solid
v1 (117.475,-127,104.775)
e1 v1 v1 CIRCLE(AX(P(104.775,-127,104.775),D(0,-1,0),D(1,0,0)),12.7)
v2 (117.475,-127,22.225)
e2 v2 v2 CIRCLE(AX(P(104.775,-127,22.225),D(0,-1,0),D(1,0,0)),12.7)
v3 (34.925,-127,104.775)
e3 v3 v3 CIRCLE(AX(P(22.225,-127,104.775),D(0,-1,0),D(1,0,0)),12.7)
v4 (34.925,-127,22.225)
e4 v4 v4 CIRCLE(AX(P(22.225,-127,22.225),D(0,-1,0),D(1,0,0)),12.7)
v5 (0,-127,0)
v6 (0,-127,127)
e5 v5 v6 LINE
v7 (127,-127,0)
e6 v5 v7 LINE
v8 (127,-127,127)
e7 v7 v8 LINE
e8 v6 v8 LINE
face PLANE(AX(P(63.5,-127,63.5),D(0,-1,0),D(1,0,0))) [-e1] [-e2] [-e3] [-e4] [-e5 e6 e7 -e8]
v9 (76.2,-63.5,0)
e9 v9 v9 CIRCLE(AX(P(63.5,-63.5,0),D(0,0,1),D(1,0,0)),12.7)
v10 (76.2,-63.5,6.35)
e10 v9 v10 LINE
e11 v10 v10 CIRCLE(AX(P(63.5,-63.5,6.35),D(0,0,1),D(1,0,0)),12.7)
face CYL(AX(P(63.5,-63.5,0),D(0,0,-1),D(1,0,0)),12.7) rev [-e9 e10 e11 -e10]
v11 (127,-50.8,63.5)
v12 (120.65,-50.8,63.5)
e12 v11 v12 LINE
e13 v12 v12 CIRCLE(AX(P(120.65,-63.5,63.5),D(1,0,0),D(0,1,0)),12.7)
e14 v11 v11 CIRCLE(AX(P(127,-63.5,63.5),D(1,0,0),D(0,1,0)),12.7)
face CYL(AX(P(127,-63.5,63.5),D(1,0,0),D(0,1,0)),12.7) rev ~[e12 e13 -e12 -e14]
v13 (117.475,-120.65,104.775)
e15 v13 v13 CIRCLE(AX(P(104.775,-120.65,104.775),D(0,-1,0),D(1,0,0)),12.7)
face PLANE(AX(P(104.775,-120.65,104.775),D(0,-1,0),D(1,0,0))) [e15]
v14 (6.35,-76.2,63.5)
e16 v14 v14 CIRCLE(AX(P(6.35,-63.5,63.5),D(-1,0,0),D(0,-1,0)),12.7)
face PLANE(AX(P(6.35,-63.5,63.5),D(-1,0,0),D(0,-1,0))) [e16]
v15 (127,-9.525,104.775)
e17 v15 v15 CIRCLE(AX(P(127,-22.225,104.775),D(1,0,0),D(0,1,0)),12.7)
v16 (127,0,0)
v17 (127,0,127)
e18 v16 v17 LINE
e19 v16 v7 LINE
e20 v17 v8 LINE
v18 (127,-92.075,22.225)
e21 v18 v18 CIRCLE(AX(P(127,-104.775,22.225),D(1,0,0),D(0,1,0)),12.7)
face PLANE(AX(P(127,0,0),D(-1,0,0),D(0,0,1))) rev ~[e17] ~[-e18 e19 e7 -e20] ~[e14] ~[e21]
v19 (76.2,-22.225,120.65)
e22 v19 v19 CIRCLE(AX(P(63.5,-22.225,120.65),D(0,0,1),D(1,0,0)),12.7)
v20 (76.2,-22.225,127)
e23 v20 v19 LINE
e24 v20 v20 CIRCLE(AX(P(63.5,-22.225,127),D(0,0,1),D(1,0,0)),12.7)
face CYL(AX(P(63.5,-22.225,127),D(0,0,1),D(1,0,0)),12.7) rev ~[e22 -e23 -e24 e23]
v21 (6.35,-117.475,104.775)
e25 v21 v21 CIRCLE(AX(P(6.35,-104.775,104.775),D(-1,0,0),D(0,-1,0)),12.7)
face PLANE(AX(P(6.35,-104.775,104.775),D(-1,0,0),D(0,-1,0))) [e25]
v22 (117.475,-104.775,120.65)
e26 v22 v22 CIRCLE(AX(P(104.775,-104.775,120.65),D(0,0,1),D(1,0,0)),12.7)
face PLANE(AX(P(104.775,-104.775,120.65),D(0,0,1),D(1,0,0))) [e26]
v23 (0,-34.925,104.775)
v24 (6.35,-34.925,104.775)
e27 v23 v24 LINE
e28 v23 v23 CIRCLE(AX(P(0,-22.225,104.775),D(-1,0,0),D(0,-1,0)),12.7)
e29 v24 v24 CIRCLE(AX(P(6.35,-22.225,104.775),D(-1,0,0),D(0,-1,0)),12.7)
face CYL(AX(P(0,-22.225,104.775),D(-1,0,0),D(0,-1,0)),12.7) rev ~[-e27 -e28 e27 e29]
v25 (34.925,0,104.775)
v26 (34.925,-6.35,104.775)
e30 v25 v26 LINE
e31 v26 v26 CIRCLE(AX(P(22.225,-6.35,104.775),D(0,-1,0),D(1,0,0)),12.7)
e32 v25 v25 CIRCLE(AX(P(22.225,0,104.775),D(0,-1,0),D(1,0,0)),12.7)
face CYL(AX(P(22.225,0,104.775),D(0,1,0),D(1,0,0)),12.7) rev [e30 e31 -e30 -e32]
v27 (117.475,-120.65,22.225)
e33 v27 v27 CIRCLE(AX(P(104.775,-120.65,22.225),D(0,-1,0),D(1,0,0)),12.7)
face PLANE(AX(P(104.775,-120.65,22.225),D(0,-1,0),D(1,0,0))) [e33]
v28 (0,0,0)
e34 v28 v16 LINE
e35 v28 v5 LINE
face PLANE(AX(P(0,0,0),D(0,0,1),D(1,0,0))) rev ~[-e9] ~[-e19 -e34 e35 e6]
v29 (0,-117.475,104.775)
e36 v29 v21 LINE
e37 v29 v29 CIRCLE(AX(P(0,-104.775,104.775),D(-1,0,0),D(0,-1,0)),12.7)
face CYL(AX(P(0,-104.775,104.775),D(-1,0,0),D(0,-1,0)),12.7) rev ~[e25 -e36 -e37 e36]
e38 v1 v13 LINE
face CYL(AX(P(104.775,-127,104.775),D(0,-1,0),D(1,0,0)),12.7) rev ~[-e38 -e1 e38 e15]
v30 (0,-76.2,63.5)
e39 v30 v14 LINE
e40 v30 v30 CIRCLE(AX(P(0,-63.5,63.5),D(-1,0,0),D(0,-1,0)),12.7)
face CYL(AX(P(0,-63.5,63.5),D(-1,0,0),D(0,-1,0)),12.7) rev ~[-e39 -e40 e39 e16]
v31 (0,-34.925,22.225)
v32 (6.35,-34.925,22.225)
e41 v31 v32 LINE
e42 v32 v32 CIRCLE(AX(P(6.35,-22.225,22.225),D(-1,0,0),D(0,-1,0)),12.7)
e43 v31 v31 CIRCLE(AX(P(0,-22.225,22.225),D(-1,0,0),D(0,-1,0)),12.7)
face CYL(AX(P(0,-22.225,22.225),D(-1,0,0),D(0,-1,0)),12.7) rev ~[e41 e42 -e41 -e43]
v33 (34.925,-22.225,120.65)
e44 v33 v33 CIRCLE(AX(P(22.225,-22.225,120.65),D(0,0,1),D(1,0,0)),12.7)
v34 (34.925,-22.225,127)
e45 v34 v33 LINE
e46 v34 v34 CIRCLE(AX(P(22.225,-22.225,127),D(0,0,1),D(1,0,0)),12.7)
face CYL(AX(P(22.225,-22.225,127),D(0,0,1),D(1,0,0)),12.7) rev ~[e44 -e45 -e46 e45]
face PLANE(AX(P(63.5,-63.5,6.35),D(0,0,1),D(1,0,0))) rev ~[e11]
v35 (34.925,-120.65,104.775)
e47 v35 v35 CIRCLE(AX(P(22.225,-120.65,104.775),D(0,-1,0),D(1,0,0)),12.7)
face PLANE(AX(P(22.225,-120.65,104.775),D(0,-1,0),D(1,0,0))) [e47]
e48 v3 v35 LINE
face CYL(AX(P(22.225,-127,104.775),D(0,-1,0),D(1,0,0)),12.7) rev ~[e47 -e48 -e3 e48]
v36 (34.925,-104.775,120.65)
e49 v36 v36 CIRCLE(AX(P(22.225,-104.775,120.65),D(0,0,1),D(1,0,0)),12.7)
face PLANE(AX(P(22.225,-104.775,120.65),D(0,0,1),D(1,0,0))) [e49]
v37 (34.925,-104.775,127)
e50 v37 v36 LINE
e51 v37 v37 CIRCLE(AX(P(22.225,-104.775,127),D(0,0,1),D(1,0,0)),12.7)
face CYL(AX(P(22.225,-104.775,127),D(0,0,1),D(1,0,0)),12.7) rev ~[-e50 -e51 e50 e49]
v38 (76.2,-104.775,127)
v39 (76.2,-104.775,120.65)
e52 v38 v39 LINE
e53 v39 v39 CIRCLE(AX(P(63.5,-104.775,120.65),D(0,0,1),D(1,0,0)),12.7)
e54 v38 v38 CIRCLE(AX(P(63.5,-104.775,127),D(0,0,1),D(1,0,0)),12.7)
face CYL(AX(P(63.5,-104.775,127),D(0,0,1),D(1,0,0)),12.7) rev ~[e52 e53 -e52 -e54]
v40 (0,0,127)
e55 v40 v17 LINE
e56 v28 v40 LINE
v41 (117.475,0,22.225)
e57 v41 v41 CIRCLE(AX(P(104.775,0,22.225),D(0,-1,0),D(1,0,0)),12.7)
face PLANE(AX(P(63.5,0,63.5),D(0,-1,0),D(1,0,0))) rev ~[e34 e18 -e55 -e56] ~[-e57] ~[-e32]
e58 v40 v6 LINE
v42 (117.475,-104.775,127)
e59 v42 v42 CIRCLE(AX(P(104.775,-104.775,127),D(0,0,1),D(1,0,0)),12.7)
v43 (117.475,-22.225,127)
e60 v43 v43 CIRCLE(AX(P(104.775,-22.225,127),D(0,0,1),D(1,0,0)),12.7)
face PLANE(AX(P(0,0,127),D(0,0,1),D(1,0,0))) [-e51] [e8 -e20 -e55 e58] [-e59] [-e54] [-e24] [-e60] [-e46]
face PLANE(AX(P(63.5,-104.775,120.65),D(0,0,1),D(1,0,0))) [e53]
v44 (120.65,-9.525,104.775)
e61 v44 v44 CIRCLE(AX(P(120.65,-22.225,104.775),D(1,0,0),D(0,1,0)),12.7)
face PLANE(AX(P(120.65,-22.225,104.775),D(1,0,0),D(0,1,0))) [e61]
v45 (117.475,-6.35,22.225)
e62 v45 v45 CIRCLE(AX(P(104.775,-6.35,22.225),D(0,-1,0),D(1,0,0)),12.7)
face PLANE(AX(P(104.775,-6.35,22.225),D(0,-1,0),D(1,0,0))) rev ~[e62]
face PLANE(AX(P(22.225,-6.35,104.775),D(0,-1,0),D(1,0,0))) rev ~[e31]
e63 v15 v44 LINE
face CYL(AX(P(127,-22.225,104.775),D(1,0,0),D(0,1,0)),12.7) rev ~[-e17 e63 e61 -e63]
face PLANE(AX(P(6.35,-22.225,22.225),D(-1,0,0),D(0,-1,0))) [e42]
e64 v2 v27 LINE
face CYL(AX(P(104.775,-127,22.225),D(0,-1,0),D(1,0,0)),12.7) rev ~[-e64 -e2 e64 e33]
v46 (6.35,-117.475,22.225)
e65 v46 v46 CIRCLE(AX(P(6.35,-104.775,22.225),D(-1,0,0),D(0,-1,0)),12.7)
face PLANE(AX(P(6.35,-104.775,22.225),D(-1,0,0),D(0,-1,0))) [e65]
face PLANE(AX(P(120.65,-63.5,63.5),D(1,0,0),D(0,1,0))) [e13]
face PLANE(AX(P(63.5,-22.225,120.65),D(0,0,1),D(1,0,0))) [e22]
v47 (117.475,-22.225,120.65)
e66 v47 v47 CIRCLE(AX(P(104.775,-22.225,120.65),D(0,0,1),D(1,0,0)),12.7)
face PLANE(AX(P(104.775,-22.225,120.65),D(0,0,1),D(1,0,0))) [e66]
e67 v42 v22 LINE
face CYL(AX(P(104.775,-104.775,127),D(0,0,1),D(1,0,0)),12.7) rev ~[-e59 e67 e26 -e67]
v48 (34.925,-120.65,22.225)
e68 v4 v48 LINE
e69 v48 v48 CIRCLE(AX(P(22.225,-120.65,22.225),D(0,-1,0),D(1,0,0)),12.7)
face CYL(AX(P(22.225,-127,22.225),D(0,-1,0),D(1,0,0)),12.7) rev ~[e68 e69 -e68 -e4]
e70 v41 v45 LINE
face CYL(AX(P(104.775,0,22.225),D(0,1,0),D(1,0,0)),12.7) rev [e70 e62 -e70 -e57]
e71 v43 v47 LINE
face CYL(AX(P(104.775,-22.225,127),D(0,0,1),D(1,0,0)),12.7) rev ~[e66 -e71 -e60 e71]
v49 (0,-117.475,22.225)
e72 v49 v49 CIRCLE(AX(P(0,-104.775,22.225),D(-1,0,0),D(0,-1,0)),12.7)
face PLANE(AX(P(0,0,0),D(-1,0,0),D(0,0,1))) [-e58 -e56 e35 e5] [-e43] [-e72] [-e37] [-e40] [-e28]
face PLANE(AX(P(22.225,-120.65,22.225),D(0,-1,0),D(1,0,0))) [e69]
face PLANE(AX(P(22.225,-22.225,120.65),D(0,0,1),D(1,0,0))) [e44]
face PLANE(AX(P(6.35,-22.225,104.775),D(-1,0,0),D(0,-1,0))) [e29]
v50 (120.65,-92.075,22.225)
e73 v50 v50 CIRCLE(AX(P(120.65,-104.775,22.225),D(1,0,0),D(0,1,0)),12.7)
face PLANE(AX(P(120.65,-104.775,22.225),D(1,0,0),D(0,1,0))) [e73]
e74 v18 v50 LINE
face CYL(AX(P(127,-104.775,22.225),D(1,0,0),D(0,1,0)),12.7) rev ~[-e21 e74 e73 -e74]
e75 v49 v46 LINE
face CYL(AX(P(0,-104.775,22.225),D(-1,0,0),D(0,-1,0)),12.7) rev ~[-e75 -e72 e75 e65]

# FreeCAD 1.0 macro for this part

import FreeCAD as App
import Part
import Sketcher
Q = App.Units.Quantity


def add_polygon(sketch, points):
    """Adds a closed chain of lines whose ends are joined by coincident constraints."""
    first, n = sketch.GeometryCount, len(points)
    for a, b in zip(points, points[1:] + points[:1]):
        sketch.addGeometry(Part.LineSegment(App.Vector(*a, 0), App.Vector(*b, 0)), False)
    for i in range(n):
        sketch.addConstraint(Sketcher.Constraint("Coincident", first + i, 2, first + (i + 1) % n, 1))

doc = App.newDocument("Part")
params = doc.addObject("Spreadsheet::Sheet", "Params")
for row, (alias, value) in enumerate([
    ("sketch1_width", "5 in"),
    ("pad1_length", "5 in"),
    ("sketch2_diameter", "1 in"),
    ("pocket1_length", "0.25 in"),
    ("sketch3_diameter", "1 in"),
    ("pocket2_length", "0.25 in"),
    ("sketch4_diameter", "1 in"),
    ("pocket3_length", "0.25 in"),
    ("sketch5_diameter", "1 in"),
    ("pocket4_length", "0.25 in"),
    ("sketch6_diameter", "1 in"),
    ("pocket5_length", "0.25 in"),
    ("sketch7_diameter", "1 in"),
    ("pocket6_length", "0.25 in"),
], start=1):
    params.set(f"A{row}", alias)
    params.set(f"B{row}", "=" + value)
    params.setAlias(f"B{row}", alias)

body = doc.addObject("PartDesign::Body", "Body")

# Sketch on XZ plane
sketch1 = doc.addObject("Sketcher::SketchObject", "Sketch")
body.addObject(sketch1)
sketch1.AttachmentSupport = (doc.XZ_Plane, [""])
sketch1.MapMode = "FlatFace"
add_polygon(sketch1, [(0, 127), (0, 0), (127, 0), (127, 127)])  # lines 0-3
sketch1.addConstraint([
    Sketcher.Constraint("Vertical", 0),
    Sketcher.Constraint("Horizontal", 1),
    Sketcher.Constraint("Vertical", 2),
    Sketcher.Constraint("Horizontal", 3),
    Sketcher.Constraint("Coincident", 0, 2, -1, 1),
    Sketcher.Constraint("Equal", 3, 0),
    Sketcher.Constraint("DistanceX", 1, 1, 1, 2, Q("5 in")),
])
sketch1.setExpression("Constraints[10]", "Params.sketch1_width")
pad1 = doc.addObject("PartDesign::Pad", "Pad")
body.addObject(pad1)
pad1.Profile = sketch1
pad1.setExpression("Length", "Params.pad1_length")

# Sketch on XY plane
sketch2 = doc.addObject("Sketcher::SketchObject", "Sketch001")
body.addObject(sketch2)
sketch2.AttachmentSupport = (doc.XY_Plane, [""])
sketch2.MapMode = "FlatFace"
sketch2.addGeometry(Part.Circle(App.Vector(64, -64, 0), App.Vector(0, 0, 1), 13), False)
sketch2.addConstraint([
    Sketcher.Constraint("Diameter", 0, Q("1 in")),
    Sketcher.Constraint("DistanceX", -1, 1, 0, 3, Q("2.5 in")),
    Sketcher.Constraint("DistanceY", 0, 3, -1, 1, Q("2.5 in")),
])
sketch2.setExpression("Constraints[0]", "Params.sketch2_diameter")
pocket1 = doc.addObject("PartDesign::Pocket", "Pocket")
body.addObject(pocket1)
pocket1.Profile = sketch2
pocket1.setExpression("Length", "Params.pocket1_length")
pocket1.Reversed = True

# Sketch on XZ plane
sketch3 = doc.addObject("Sketcher::SketchObject", "Sketch002")
body.addObject(sketch3)
sketch3.AttachmentSupport = (doc.XZ_Plane, [""])
sketch3.MapMode = "FlatFace"
sketch3.addGeometry([
    Part.Circle(App.Vector(105, 22, 0), App.Vector(0, 0, 1), 13),
    Part.Circle(App.Vector(22, 105, 0), App.Vector(0, 0, 1), 13),
], False)
sketch3.addConstraint([
    Sketcher.Constraint("Equal", 0, 1),
    Sketcher.Constraint("Diameter", 0, Q("1 in")),
    Sketcher.Constraint("DistanceX", 1, 3, 0, 3, Q("3.25 in")),
    Sketcher.Constraint("DistanceY", 0, 3, 1, 3, Q("3.25 in")),
    Sketcher.Constraint("DistanceX", -1, 1, 0, 3, Q("4.125 in")),
    Sketcher.Constraint("DistanceY", -1, 1, 0, 3, Q("0.875 in")),
])
sketch3.setExpression("Constraints[1]", "Params.sketch3_diameter")
pocket2 = doc.addObject("PartDesign::Pocket", "Pocket001")
body.addObject(pocket2)
pocket2.Profile = sketch3
pocket2.setExpression("Length", "Params.pocket2_length")
pocket2.Reversed = True

# Sketch on YZ plane
sketch4 = doc.addObject("Sketcher::SketchObject", "Sketch003")
body.addObject(sketch4)
sketch4.AttachmentSupport = (doc.YZ_Plane, [""])
sketch4.MapMode = "FlatFace"
sketch4.AttachmentOffset = App.Placement(App.Vector(0, 0, 5 * 25.4), App.Rotation())
sketch4.addGeometry([
    Part.Circle(App.Vector(-22, 105, 0), App.Vector(0, 0, 1), 13),
    Part.Circle(App.Vector(-64, 64, 0), App.Vector(0, 0, 1), 13),
    Part.Circle(App.Vector(-105, 22, 0), App.Vector(0, 0, 1), 13),
], False)
sketch4.addConstraint([
    Sketcher.Constraint("Equal", 0, 1),
    Sketcher.Constraint("Equal", 1, 2),
    Sketcher.Constraint("Diameter", 0, Q("1 in")),
    Sketcher.Constraint("DistanceX", 1, 3, -1, 1, Q("2.5 in")),
    Sketcher.Constraint("DistanceY", -1, 1, 1, 3, Q("2.5 in")),
    Sketcher.Constraint("DistanceX", 2, 3, 0, 3, Q("3.25 in")),
    Sketcher.Constraint("DistanceY", 2, 3, 0, 3, Q("3.25 in")),
    Sketcher.Constraint("DistanceX", 0, 3, -1, 1, Q("0.875 in")),
    Sketcher.Constraint("DistanceY", -1, 1, 0, 3, Q("4.125 in")),
])
sketch4.setExpression("Constraints[2]", "Params.sketch4_diameter")
pocket3 = doc.addObject("PartDesign::Pocket", "Pocket002")
body.addObject(pocket3)
pocket3.Profile = sketch4
pocket3.setExpression("Length", "Params.pocket3_length")

# Sketch on XZ plane
sketch5 = doc.addObject("Sketcher::SketchObject", "Sketch004")
body.addObject(sketch5)
sketch5.AttachmentSupport = (doc.XZ_Plane, [""])
sketch5.MapMode = "FlatFace"
sketch5.AttachmentOffset = App.Placement(App.Vector(0, 0, 5 * 25.4), App.Rotation())
sketch5.addGeometry([
    Part.Circle(App.Vector(105, 105, 0), App.Vector(0, 0, 1), 13),
    Part.Circle(App.Vector(105, 22, 0), App.Vector(0, 0, 1), 13),
    Part.Circle(App.Vector(22, 22, 0), App.Vector(0, 0, 1), 13),
    Part.Circle(App.Vector(22, 105, 0), App.Vector(0, 0, 1), 13),
], False)
sketch5.addConstraint([
    Sketcher.Constraint("Equal", 0, 1),
    Sketcher.Constraint("Equal", 1, 2),
    Sketcher.Constraint("Equal", 2, 3),
    Sketcher.Constraint("Horizontal", 1, 3, 2, 3),
    Sketcher.Constraint("Horizontal", 0, 3, 3, 3),
    Sketcher.Constraint("Vertical", 0, 3, 1, 3),
    Sketcher.Constraint("Vertical", 2, 3, 3, 3),
    Sketcher.Constraint("Diameter", 0, Q("1 in")),
    Sketcher.Constraint("DistanceY", 1, 3, 0, 3, Q("3.25 in")),
    Sketcher.Constraint("DistanceX", 2, 3, 1, 3, Q("3.25 in")),
    Sketcher.Constraint("DistanceX", -1, 1, 0, 3, Q("4.125 in")),
    Sketcher.Constraint("DistanceY", -1, 1, 0, 3, Q("4.125 in")),
])
sketch5.setExpression("Constraints[7]", "Params.sketch5_diameter")
pocket4 = doc.addObject("PartDesign::Pocket", "Pocket003")
body.addObject(pocket4)
pocket4.Profile = sketch5
pocket4.setExpression("Length", "Params.pocket4_length")

# Sketch on YZ plane
sketch6 = doc.addObject("Sketcher::SketchObject", "Sketch005")
body.addObject(sketch6)
sketch6.AttachmentSupport = (doc.YZ_Plane, [""])
sketch6.MapMode = "FlatFace"
sketch6.addGeometry([
    Part.Circle(App.Vector(-105, 22, 0), App.Vector(0, 0, 1), 13),  # 0
    Part.Circle(App.Vector(-22, 22, 0), App.Vector(0, 0, 1), 13),  # 1
    Part.Circle(App.Vector(-64, 64, 0), App.Vector(0, 0, 1), 13),  # 2
    Part.Circle(App.Vector(-105, 105, 0), App.Vector(0, 0, 1), 13),  # 3
    Part.Circle(App.Vector(-22, 105, 0), App.Vector(0, 0, 1), 13),  # 4
], False)
sketch6.addConstraint([
    Sketcher.Constraint("Equal", 0, 1),
    Sketcher.Constraint("Equal", 1, 2),
    Sketcher.Constraint("Equal", 2, 3),
    Sketcher.Constraint("Equal", 3, 4),
    Sketcher.Constraint("Horizontal", 0, 3, 1, 3),
    Sketcher.Constraint("Horizontal", 3, 3, 4, 3),
    Sketcher.Constraint("Vertical", 0, 3, 3, 3),
    Sketcher.Constraint("Vertical", 1, 3, 4, 3),
    Sketcher.Constraint("Diameter", 0, Q("1 in")),
    Sketcher.Constraint("DistanceX", 2, 3, -1, 1, Q("2.5 in")),
    Sketcher.Constraint("DistanceY", -1, 1, 2, 3, Q("2.5 in")),
    Sketcher.Constraint("DistanceX", 0, 3, 1, 3, Q("3.25 in")),
    Sketcher.Constraint("DistanceY", 0, 3, 3, 3, Q("3.25 in")),
    Sketcher.Constraint("DistanceX", 0, 3, -1, 1, Q("4.125 in")),
    Sketcher.Constraint("DistanceY", -1, 1, 0, 3, Q("0.875 in")),
])
sketch6.setExpression("Constraints[8]", "Params.sketch6_diameter")
pocket5 = doc.addObject("PartDesign::Pocket", "Pocket004")
body.addObject(pocket5)
pocket5.Profile = sketch6
pocket5.setExpression("Length", "Params.pocket5_length")
pocket5.Reversed = True

# Sketch on XY plane
sketch7 = doc.addObject("Sketcher::SketchObject", "Sketch006")
body.addObject(sketch7)
sketch7.AttachmentSupport = (doc.XY_Plane, [""])
sketch7.MapMode = "FlatFace"
sketch7.AttachmentOffset = App.Placement(App.Vector(0, 0, 5 * 25.4), App.Rotation())
sketch7.addGeometry([
    Part.Circle(App.Vector(22, -105, 0), App.Vector(0, 0, 1), 13),  # 0
    Part.Circle(App.Vector(64, -105, 0), App.Vector(0, 0, 1), 13),  # 1
    Part.Circle(App.Vector(105, -105, 0), App.Vector(0, 0, 1), 13),  # 2
    Part.Circle(App.Vector(105, -22, 0), App.Vector(0, 0, 1), 13),  # 3
    Part.Circle(App.Vector(64, -22, 0), App.Vector(0, 0, 1), 13),  # 4
    Part.Circle(App.Vector(22, -22, 0), App.Vector(0, 0, 1), 13),  # 5
], False)
sketch7.addConstraint([
    Sketcher.Constraint("Equal", 0, 1),
    Sketcher.Constraint("Equal", 1, 2),
    Sketcher.Constraint("Equal", 2, 3),
    Sketcher.Constraint("Equal", 3, 4),
    Sketcher.Constraint("Equal", 4, 5),
    Sketcher.Constraint("Horizontal", 0, 3, 1, 3),
    Sketcher.Constraint("Horizontal", 1, 3, 2, 3),
    Sketcher.Constraint("Horizontal", 3, 3, 4, 3),
    Sketcher.Constraint("Horizontal", 4, 3, 5, 3),
    Sketcher.Constraint("Vertical", 2, 3, 3, 3),
    Sketcher.Constraint("Vertical", 1, 3, 4, 3),
    Sketcher.Constraint("Vertical", 0, 3, 5, 3),
    Sketcher.Constraint("Diameter", 0, Q("1 in")),
    Sketcher.Constraint("DistanceX", -1, 1, 1, 3, Q("2.5 in")),
    Sketcher.Constraint("DistanceX", 0, 3, 2, 3, Q("3.25 in")),
    Sketcher.Constraint("DistanceY", 2, 3, 3, 3, Q("3.25 in")),
    Sketcher.Constraint("DistanceX", -1, 1, 0, 3, Q("0.875 in")),
    Sketcher.Constraint("DistanceY", 0, 3, -1, 1, Q("4.125 in")),
])
sketch7.setExpression("Constraints[12]", "Params.sketch7_diameter")
pocket6 = doc.addObject("PartDesign::Pocket", "Pocket005")
body.addObject(pocket6)
pocket6.Profile = sketch7
pocket6.setExpression("Length", "Params.pocket6_length")

doc.recompute()
